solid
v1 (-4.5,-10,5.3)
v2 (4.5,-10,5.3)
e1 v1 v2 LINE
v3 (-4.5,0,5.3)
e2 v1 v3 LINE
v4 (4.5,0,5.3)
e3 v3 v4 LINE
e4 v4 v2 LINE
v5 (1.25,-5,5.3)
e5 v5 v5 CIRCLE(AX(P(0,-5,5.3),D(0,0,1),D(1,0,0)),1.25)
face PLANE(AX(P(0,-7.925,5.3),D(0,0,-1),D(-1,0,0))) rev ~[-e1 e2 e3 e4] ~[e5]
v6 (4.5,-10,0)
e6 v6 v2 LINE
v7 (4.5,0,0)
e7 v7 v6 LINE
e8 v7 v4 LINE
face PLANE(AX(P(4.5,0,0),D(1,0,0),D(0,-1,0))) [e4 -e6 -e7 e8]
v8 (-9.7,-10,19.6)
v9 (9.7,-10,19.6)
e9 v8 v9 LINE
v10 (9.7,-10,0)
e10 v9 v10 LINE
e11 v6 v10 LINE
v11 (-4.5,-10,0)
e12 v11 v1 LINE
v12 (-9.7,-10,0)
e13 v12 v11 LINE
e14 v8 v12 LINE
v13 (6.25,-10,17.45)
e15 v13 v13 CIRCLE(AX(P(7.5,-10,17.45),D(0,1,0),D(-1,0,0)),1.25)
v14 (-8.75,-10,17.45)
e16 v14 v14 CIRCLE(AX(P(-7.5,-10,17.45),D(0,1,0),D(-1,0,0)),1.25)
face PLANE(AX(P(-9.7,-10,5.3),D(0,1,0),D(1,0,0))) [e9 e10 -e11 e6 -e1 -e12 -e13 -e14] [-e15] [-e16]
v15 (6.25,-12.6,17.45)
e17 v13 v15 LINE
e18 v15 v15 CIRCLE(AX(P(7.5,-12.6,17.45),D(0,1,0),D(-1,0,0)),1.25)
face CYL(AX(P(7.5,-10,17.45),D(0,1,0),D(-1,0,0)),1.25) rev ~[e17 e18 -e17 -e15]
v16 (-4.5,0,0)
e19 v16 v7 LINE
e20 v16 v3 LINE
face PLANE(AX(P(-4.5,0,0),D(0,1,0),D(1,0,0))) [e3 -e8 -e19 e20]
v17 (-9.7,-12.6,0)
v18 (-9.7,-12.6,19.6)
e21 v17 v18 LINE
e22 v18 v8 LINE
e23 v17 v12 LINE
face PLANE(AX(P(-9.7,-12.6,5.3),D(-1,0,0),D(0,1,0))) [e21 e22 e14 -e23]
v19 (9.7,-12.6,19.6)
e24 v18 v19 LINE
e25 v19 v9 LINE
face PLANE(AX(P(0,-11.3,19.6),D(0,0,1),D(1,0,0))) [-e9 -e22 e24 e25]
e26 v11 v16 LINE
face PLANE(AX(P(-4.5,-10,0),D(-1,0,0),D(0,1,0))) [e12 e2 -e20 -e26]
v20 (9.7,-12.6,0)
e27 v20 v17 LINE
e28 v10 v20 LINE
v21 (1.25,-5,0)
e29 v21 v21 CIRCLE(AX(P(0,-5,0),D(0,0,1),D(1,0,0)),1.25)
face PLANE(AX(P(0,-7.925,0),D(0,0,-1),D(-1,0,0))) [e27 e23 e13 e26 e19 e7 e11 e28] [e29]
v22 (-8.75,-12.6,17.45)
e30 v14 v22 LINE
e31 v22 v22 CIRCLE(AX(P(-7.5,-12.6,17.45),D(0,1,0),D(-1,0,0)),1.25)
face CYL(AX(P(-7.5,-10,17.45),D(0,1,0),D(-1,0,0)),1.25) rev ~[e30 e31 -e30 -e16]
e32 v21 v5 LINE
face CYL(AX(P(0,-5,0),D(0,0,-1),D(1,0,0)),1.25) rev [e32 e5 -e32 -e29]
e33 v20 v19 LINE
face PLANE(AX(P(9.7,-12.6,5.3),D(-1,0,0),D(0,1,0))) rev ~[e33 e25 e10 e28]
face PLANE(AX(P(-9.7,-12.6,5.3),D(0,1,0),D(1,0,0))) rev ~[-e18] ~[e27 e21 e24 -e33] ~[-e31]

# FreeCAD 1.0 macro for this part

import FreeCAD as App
import Part
import Sketcher
from FreeCAD import Vector
Q = App.Units.Quantity


def add_polygon(sketch, points):
    """Adds a closed chain of lines whose ends are joined by coincident constraints."""
    first, n = sketch.GeometryCount, len(points)
    for a, b in zip(points, points[1:] + points[:1]):
        sketch.addGeometry(Part.LineSegment(App.Vector(*a, 0), App.Vector(*b, 0)), False)
    for i in range(n):
        sketch.addConstraint(Sketcher.Constraint("Coincident", first + i, 2, first + (i + 1) % n, 1))

doc = App.newDocument("Part")
body = doc.addObject("PartDesign::Body", "Body")

# Sketch on XY plane
sketch1 = body.newObject("Sketcher::SketchObject", "Sketch")
sketch1.AttachmentSupport = (doc.getObject("XY_Plane"), [""])
sketch1.MapMode = "FlatFace"
add_polygon(sketch1, [(4.5, 0), (-4.5, 0), (-4.5, -10), (-9.7, -10), (-9.7, -12.6), (9.7, -12.6), (9.7, -10), (4.5, -10)])  # lines 0-7
sketch1.addGeometry(Part.Circle(Vector(0, -5, 0), Vector(0, 0, 1), 1.2), False)  # 8
sketch1.addConstraint([
    Sketcher.Constraint("Horizontal", 0),
    Sketcher.Constraint("Vertical", 1),
    Sketcher.Constraint("Horizontal", 2),
    Sketcher.Constraint("Vertical", 3),
    Sketcher.Constraint("Horizontal", 4),
    Sketcher.Constraint("Vertical", 5),
    Sketcher.Constraint("Horizontal", 6),
    Sketcher.Constraint("Vertical", 7),
    Sketcher.Constraint("Symmetric", 0, 2, 7, 2, -1, 1),
    Sketcher.Constraint("Symmetric", 2, 2, 5, 2, -2),
    Sketcher.Constraint("PointOnObject", 8, 3, -2),
    Sketcher.Constraint("Diameter", 8, Q("2.5 mm")),
    Sketcher.Constraint("DistanceX", 0, 2, 0, 1, Q("9 mm")),
    Sketcher.Constraint("DistanceY", 1, 2, 1, 1, Q("10 mm")),
    Sketcher.Constraint("DistanceX", 2, 2, 2, 1, Q("5.2 mm")),
    Sketcher.Constraint("DistanceY", 3, 2, 3, 1, Q("2.6 mm")),
    Sketcher.Constraint("DistanceY", 8, 3, -1, 1, Q("5 mm")),
])
pad1 = body.newObject("PartDesign::Pad", "Pad")
pad1.Profile = sketch1
pad1.Length = 5.3

# Sketch on XY plane
sketch2 = body.newObject("Sketcher::SketchObject", "Sketch001")
sketch2.AttachmentSupport = (doc.getObject("XY_Plane"), [""])
sketch2.MapMode = "FlatFace"
sketch2.AttachmentOffset = App.Placement(Vector(0, 0, 5.3), App.Rotation())
add_polygon(sketch2, [(-9.7, -10), (-9.7, -12.6), (9.7, -12.6), (9.7, -10)])  # lines 0-3
sketch2.addConstraint([
    Sketcher.Constraint("Vertical", 0),
    Sketcher.Constraint("Horizontal", 1),
    Sketcher.Constraint("Vertical", 2),
    Sketcher.Constraint("Horizontal", 3),
    Sketcher.Constraint("DistanceX", 1, 1, 1, 2, Q("19.4 mm")),
    Sketcher.Constraint("DistanceY", 0, 2, 0, 1, Q("2.6 mm")),
    Sketcher.Constraint("DistanceY", 2, 2, -1, 1, Q("10 mm")),
    Sketcher.Constraint("DistanceX", 0, 2, -1, 1, Q("9.7 mm")),
])
pad2 = body.newObject("PartDesign::Pad", "Pad001")
pad2.Profile = sketch2
pad2.Length = 14.3

# Sketch on XZ plane
sketch3 = body.newObject("Sketcher::SketchObject", "Sketch002")
sketch3.AttachmentSupport = (doc.getObject("XZ_Plane"), [""])
sketch3.MapMode = "FlatFace"
sketch3.AttachmentOffset = App.Placement(Vector(0, 0, 10), App.Rotation())
sketch3.addGeometry([
    Part.Circle(Vector(7.5, 17.4, 0), Vector(0, 0, 1), 1.2),
    Part.Circle(Vector(-7.5, 17.4, 0), Vector(0, 0, 1), 1.2),
], False)
sketch3.addConstraint([
    Sketcher.Constraint("Equal", 0, 1),
    Sketcher.Constraint("Symmetric", 0, 3, 1, 3, -2),
    Sketcher.Constraint("Diameter", 0, Q("2.5 mm")),
    Sketcher.Constraint("DistanceX", 1, 3, 0, 3, Q("15 mm")),
    Sketcher.Constraint("DistanceY", -1, 1, 0, 3, Q("17.45 mm")),
])
pocket1 = body.newObject("PartDesign::Pocket", "Pocket")
pocket1.Profile = sketch3
pocket1.Length = 2.6
pocket1.Reversed = True

doc.recompute()
